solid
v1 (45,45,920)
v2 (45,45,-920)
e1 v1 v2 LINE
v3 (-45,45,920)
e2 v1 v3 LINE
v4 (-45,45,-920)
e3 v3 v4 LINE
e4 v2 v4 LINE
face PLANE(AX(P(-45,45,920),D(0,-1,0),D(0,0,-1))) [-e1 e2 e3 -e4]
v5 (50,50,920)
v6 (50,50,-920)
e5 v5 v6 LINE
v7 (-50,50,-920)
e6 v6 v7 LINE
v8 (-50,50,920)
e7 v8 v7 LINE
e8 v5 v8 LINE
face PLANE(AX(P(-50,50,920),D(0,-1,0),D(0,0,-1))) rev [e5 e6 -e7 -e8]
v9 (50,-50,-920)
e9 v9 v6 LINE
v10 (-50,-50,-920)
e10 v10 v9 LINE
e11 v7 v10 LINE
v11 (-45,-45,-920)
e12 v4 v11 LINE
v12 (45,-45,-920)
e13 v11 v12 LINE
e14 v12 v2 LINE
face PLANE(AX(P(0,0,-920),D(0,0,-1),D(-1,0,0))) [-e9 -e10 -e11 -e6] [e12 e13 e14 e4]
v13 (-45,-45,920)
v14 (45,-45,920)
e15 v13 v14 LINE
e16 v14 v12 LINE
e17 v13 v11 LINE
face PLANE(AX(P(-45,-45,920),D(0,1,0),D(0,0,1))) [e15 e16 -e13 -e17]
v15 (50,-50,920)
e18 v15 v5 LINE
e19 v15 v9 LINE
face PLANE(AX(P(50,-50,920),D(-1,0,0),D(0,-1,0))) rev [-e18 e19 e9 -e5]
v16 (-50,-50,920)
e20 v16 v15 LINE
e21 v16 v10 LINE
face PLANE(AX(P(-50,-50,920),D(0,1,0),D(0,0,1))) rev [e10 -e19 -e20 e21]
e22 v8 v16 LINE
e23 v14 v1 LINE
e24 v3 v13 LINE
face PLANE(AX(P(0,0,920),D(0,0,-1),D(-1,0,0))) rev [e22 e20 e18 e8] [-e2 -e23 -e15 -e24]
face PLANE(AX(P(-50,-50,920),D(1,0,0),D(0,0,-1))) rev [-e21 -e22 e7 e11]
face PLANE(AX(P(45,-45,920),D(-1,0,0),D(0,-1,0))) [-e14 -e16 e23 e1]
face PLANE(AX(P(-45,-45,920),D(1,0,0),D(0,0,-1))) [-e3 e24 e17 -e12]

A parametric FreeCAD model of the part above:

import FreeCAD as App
import Part
import Sketcher
from FreeCAD import Vector
Q = App.Units.Quantity


def add_polygon(sketch, points):
    """Adds a closed chain of lines whose ends are joined by coincident constraints."""
    first, n = sketch.GeometryCount, len(points)
    for a, b in zip(points, points[1:] + points[:1]):
        sketch.addGeometry(Part.LineSegment(App.Vector(*a, 0), App.Vector(*b, 0)), False)
    for i in range(n):
        sketch.addConstraint(Sketcher.Constraint("Coincident", first + i, 2, first + (i + 1) % n, 1))

doc = App.newDocument("Part")
body = doc.addObject("PartDesign::Body", "Body")

# Sketch on XY plane
sketch1 = body.newObject("Sketcher::SketchObject", "Sketch")
sketch1.AttachmentSupport = (doc.getObject("XY_Plane"), [""])
sketch1.MapMode = "FlatFace"
add_polygon(sketch1, [(-50, 50), (-50, -50), (50, -50), (50, 50)])  # lines 0-3
add_polygon(sketch1, [(45, -45), (-45, -45), (-45, 45), (45, 45)])  # lines 4-7
sketch1.addConstraint([
    Sketcher.Constraint("Vertical", 0),
    Sketcher.Constraint("Horizontal", 1),
    Sketcher.Constraint("Vertical", 2),
    Sketcher.Constraint("Horizontal", 3),
    Sketcher.Constraint("Horizontal", 4),
    Sketcher.Constraint("Vertical", 5),
    Sketcher.Constraint("Horizontal", 6),
    Sketcher.Constraint("Vertical", 7),
    Sketcher.Constraint("Symmetric", 0, 2, 2, 2, -1, 1),
    Sketcher.Constraint("Symmetric", 4, 2, 6, 2, -1, 1),
    Sketcher.Constraint("Equal", 3, 0),
    Sketcher.Constraint("Equal", 6, 5),
    Sketcher.Constraint("DistanceX", 1, 1, 1, 2, Q("100 mm")),
    Sketcher.Constraint("DistanceX", 4, 2, 4, 1, Q("90 mm")),
])
pad1 = body.newObject("PartDesign::Pad", "Pad")
pad1.Profile = sketch1
pad1.Length = 1840
pad1.Midplane = True

doc.recompute()
